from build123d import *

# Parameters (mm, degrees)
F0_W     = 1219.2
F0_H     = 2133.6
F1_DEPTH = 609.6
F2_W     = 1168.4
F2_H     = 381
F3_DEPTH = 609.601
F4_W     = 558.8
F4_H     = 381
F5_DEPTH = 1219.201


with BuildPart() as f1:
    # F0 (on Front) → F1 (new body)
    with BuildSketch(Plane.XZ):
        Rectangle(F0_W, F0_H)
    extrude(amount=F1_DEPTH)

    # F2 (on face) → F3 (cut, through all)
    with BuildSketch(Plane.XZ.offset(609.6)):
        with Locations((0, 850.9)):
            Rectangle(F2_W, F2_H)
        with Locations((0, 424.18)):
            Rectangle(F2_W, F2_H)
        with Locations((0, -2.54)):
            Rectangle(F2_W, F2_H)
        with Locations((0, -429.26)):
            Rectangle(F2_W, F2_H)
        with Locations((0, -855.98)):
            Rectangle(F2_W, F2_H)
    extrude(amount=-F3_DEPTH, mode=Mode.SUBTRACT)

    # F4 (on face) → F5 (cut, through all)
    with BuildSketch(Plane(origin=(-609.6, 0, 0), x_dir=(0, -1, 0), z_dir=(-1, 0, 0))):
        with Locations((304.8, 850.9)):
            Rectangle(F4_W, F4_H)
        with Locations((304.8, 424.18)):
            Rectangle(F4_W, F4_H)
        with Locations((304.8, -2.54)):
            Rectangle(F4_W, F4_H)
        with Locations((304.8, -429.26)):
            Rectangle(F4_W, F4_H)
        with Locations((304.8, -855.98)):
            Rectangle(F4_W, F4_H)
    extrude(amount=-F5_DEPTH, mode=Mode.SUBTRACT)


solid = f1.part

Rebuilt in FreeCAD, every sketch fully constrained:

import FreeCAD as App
import Part
import Sketcher
Q = App.Units.Quantity

doc = App.newDocument("Part")
body = doc.addObject("PartDesign::Body", "Body")

# Sketch on XZ plane
sketch1 = body.newObject("Sketcher::SketchObject", "Sketch")
sketch1.AttachmentSupport = (doc.getObject("XZ_Plane"), [""])
sketch1.MapMode = "FlatFace"
sketch1.addGeometry([
    Part.LineSegment(App.Vector(-609.6, 1066.8, 0), App.Vector(-609.6, -1066.8, 0)),
    Part.LineSegment(App.Vector(-609.6, -1066.8, 0), App.Vector(609.6, -1066.8, 0)),
    Part.LineSegment(App.Vector(609.6, -1066.8, 0), App.Vector(609.6, 1066.8, 0)),
    Part.LineSegment(App.Vector(609.6, 1066.8, 0), App.Vector(-609.6, 1066.8, 0)),
], False)
sketch1.addConstraint([
    Sketcher.Constraint("Coincident", 0, 2, 1, 1),
    Sketcher.Constraint("Coincident", 1, 2, 2, 1),
    Sketcher.Constraint("Coincident", 2, 2, 3, 1),
    Sketcher.Constraint("Coincident", 3, 2, 0, 1),
    Sketcher.Constraint("Vertical", 0),
    Sketcher.Constraint("Horizontal", 1),
    Sketcher.Constraint("Vertical", 2),
    Sketcher.Constraint("Horizontal", 3),
    Sketcher.Constraint("Symmetric", 0, 2, 2, 2, -1, 1),
    Sketcher.Constraint("DistanceX", 1, 1, 1, 2, Q("48 in")),
    Sketcher.Constraint("DistanceY", 0, 2, 0, 1, Q("84 in")),
])
pad1 = body.newObject("PartDesign::Pad", "Pad")
pad1.Profile = sketch1
pad1.Length = Q("24 in")

# Sketch on XZ plane
sketch2 = body.newObject("Sketcher::SketchObject", "Sketch001")
sketch2.AttachmentSupport = (doc.getObject("XZ_Plane"), [""])
sketch2.MapMode = "FlatFace"
sketch2.AttachmentOffset = App.Placement(App.Vector(0, 0, 24 * 25.4), App.Rotation())
sketch2.addGeometry([
    Part.LineSegment(App.Vector(-584.2, 1041.4, 0), App.Vector(-584.2, 660.4, 0)),  # 0
    Part.LineSegment(App.Vector(-584.2, 660.4, 0), App.Vector(584.2, 660.4, 0)),  # 1
    Part.LineSegment(App.Vector(584.2, 660.4, 0), App.Vector(584.2, 1041.4, 0)),  # 2
    Part.LineSegment(App.Vector(584.2, 1041.4, 0), App.Vector(-584.2, 1041.4, 0)),  # 3
    Part.LineSegment(App.Vector(-584.2, 614.68, 0), App.Vector(-584.2, 233.68, 0)),  # 4
    Part.LineSegment(App.Vector(-584.2, 233.68, 0), App.Vector(584.2, 233.68, 0)),  # 5
    Part.LineSegment(App.Vector(584.2, 233.68, 0), App.Vector(584.2, 614.68, 0)),  # 6
    Part.LineSegment(App.Vector(584.2, 614.68, 0), App.Vector(-584.2, 614.68, 0)),  # 7
    Part.LineSegment(App.Vector(-584.2, 187.96, 0), App.Vector(-584.2, -193.04, 0)),  # 8
    Part.LineSegment(App.Vector(-584.2, -193.04, 0), App.Vector(584.2, -193.04, 0)),  # 9
    Part.LineSegment(App.Vector(584.2, -193.04, 0), App.Vector(584.2, 187.96, 0)),  # 10
    Part.LineSegment(App.Vector(584.2, 187.96, 0), App.Vector(-584.2, 187.96, 0)),  # 11
    Part.LineSegment(App.Vector(-584.2, -238.76, 0), App.Vector(-584.2, -619.76, 0)),  # 12
    Part.LineSegment(App.Vector(-584.2, -619.76, 0), App.Vector(584.2, -619.76, 0)),  # 13
    Part.LineSegment(App.Vector(584.2, -619.76, 0), App.Vector(584.2, -238.76, 0)),  # 14
    Part.LineSegment(App.Vector(584.2, -238.76, 0), App.Vector(-584.2, -238.76, 0)),  # 15
    Part.LineSegment(App.Vector(-584.2, -665.48, 0), App.Vector(-584.2, -1046.48, 0)),  # 16
    Part.LineSegment(App.Vector(-584.2, -1046.48, 0), App.Vector(584.2, -1046.48, 0)),  # 17
    Part.LineSegment(App.Vector(584.2, -1046.48, 0), App.Vector(584.2, -665.48, 0)),  # 18
    Part.LineSegment(App.Vector(584.2, -665.48, 0), App.Vector(-584.2, -665.48, 0)),  # 19
], False)
sketch2.addConstraint([
    Sketcher.Constraint("Coincident", 0, 2, 1, 1),
    Sketcher.Constraint("Coincident", 1, 2, 2, 1),
    Sketcher.Constraint("Coincident", 2, 2, 3, 1),
    Sketcher.Constraint("Coincident", 3, 2, 0, 1),
    Sketcher.Constraint("Coincident", 4, 2, 5, 1),
    Sketcher.Constraint("Coincident", 5, 2, 6, 1),
    Sketcher.Constraint("Coincident", 6, 2, 7, 1),
    Sketcher.Constraint("Coincident", 7, 2, 4, 1),
    Sketcher.Constraint("Coincident", 8, 2, 9, 1),
    Sketcher.Constraint("Coincident", 9, 2, 10, 1),
    Sketcher.Constraint("Coincident", 10, 2, 11, 1),
    Sketcher.Constraint("Coincident", 11, 2, 8, 1),
    Sketcher.Constraint("Coincident", 12, 2, 13, 1),
    Sketcher.Constraint("Coincident", 13, 2, 14, 1),
    Sketcher.Constraint("Coincident", 14, 2, 15, 1),
    Sketcher.Constraint("Coincident", 15, 2, 12, 1),
    Sketcher.Constraint("Coincident", 16, 2, 17, 1),
    Sketcher.Constraint("Coincident", 17, 2, 18, 1),
    Sketcher.Constraint("Coincident", 18, 2, 19, 1),
    Sketcher.Constraint("Coincident", 19, 2, 16, 1),
    Sketcher.Constraint("Vertical", 0),
    Sketcher.Constraint("Horizontal", 1),
    Sketcher.Constraint("Vertical", 2),
    Sketcher.Constraint("Horizontal", 3),
    Sketcher.Constraint("Vertical", 4),
    Sketcher.Constraint("Horizontal", 5),
    Sketcher.Constraint("Vertical", 6),
    Sketcher.Constraint("Horizontal", 7),
    Sketcher.Constraint("Vertical", 8),
    Sketcher.Constraint("Horizontal", 9),
    Sketcher.Constraint("Vertical", 10),
    Sketcher.Constraint("Horizontal", 11),
    Sketcher.Constraint("Vertical", 12),
    Sketcher.Constraint("Horizontal", 13),
    Sketcher.Constraint("Vertical", 14),
    Sketcher.Constraint("Horizontal", 15),
    Sketcher.Constraint("Vertical", 16),
    Sketcher.Constraint("Horizontal", 17),
    Sketcher.Constraint("Vertical", 18),
    Sketcher.Constraint("Horizontal", 19),
    Sketcher.Constraint("Vertical", 3, 2, 4, 2),
    Sketcher.Constraint("Vertical", 2, 2, 5, 2),
    Sketcher.Constraint("Vertical", 7, 2, 8, 2),
    Sketcher.Constraint("Vertical", 6, 2, 9, 2),
    Sketcher.Constraint("Vertical", 11, 2, 12, 2),
    Sketcher.Constraint("Vertical", 10, 2, 13, 2),
    Sketcher.Constraint("Vertical", 15, 2, 16, 2),
    Sketcher.Constraint("Vertical", 14, 2, 17, 2),
    Sketcher.Constraint("Equal", 2, 4),
    Sketcher.Constraint("Equal", 6, 8),
    Sketcher.Constraint("Equal", 10, 12),
    Sketcher.Constraint("Equal", 14, 16),
    Sketcher.Constraint("DistanceX", 1, 1, 1, 2, Q("46 in")),
    Sketcher.Constraint("DistanceY", 0, 2, 0, 1, Q("15 in")),
    Sketcher.Constraint("DistanceX", 0, 2, -1, 1, Q("23 in")),
    Sketcher.Constraint("DistanceY", -1, 1, 0, 2, Q("26 in")),
    Sketcher.Constraint("DistanceY", -1, 1, 4, 2, Q("9.2 in")),
    Sketcher.Constraint("DistanceY", 8, 2, -1, 1, Q("7.6 in")),
    Sketcher.Constraint("DistanceY", 12, 2, -1, 1, Q("24.4 in")),
    Sketcher.Constraint("DistanceY", 16, 2, -1, 1, Q("41.2 in")),
])
pocket1 = body.newObject("PartDesign::Pocket", "Pocket")
pocket1.Profile = sketch2
pocket1.Type = "ThroughAll"

# Sketch on YZ plane
sketch3 = body.newObject("Sketcher::SketchObject", "Sketch002")
sketch3.AttachmentSupport = (doc.getObject("YZ_Plane"), [""])
sketch3.MapMode = "FlatFace"
sketch3.AttachmentOffset = App.Placement(App.Vector(0, 0, -24 * 25.4), App.Rotation())
sketch3.addGeometry([
    Part.LineSegment(App.Vector(-25.4, 1041.4, 0), App.Vector(-25.4, 660.4, 0)),  # 0
    Part.LineSegment(App.Vector(-25.4, 660.4, 0), App.Vector(-584.2, 660.4, 0)),  # 1
    Part.LineSegment(App.Vector(-584.2, 660.4, 0), App.Vector(-584.2, 1041.4, 0)),  # 2
    Part.LineSegment(App.Vector(-584.2, 1041.4, 0), App.Vector(-25.4, 1041.4, 0)),  # 3
    Part.LineSegment(App.Vector(-25.4, 614.68, 0), App.Vector(-25.4, 233.68, 0)),  # 4
    Part.LineSegment(App.Vector(-25.4, 233.68, 0), App.Vector(-584.2, 233.68, 0)),  # 5
    Part.LineSegment(App.Vector(-584.2, 233.68, 0), App.Vector(-584.2, 614.68, 0)),  # 6
    Part.LineSegment(App.Vector(-584.2, 614.68, 0), App.Vector(-25.4, 614.68, 0)),  # 7
    Part.LineSegment(App.Vector(-25.4, 187.96, 0), App.Vector(-25.4, -193.04, 0)),  # 8
    Part.LineSegment(App.Vector(-25.4, -193.04, 0), App.Vector(-584.2, -193.04, 0)),  # 9
    Part.LineSegment(App.Vector(-584.2, -193.04, 0), App.Vector(-584.2, 187.96, 0)),  # 10
    Part.LineSegment(App.Vector(-584.2, 187.96, 0), App.Vector(-25.4, 187.96, 0)),  # 11
    Part.LineSegment(App.Vector(-25.4, -238.76, 0), App.Vector(-25.4, -619.76, 0)),  # 12
    Part.LineSegment(App.Vector(-25.4, -619.76, 0), App.Vector(-584.2, -619.76, 0)),  # 13
    Part.LineSegment(App.Vector(-584.2, -619.76, 0), App.Vector(-584.2, -238.76, 0)),  # 14
    Part.LineSegment(App.Vector(-584.2, -238.76, 0), App.Vector(-25.4, -238.76, 0)),  # 15
    Part.LineSegment(App.Vector(-25.4, -665.48, 0), App.Vector(-25.4, -1046.48, 0)),  # 16
    Part.LineSegment(App.Vector(-25.4, -1046.48, 0), App.Vector(-584.2, -1046.48, 0)),  # 17
    Part.LineSegment(App.Vector(-584.2, -1046.48, 0), App.Vector(-584.2, -665.48, 0)),  # 18
    Part.LineSegment(App.Vector(-584.2, -665.48, 0), App.Vector(-25.4, -665.48, 0)),  # 19
], False)
sketch3.addConstraint([
    Sketcher.Constraint("Coincident", 0, 2, 1, 1),
    Sketcher.Constraint("Coincident", 1, 2, 2, 1),
    Sketcher.Constraint("Coincident", 2, 2, 3, 1),
    Sketcher.Constraint("Coincident", 3, 2, 0, 1),
    Sketcher.Constraint("Coincident", 4, 2, 5, 1),
    Sketcher.Constraint("Coincident", 5, 2, 6, 1),
    Sketcher.Constraint("Coincident", 6, 2, 7, 1),
    Sketcher.Constraint("Coincident", 7, 2, 4, 1),
    Sketcher.Constraint("Coincident", 8, 2, 9, 1),
    Sketcher.Constraint("Coincident", 9, 2, 10, 1),
    Sketcher.Constraint("Coincident", 10, 2, 11, 1),
    Sketcher.Constraint("Coincident", 11, 2, 8, 1),
    Sketcher.Constraint("Coincident", 12, 2, 13, 1),
    Sketcher.Constraint("Coincident", 13, 2, 14, 1),
    Sketcher.Constraint("Coincident", 14, 2, 15, 1),
    Sketcher.Constraint("Coincident", 15, 2, 12, 1),
    Sketcher.Constraint("Coincident", 16, 2, 17, 1),
    Sketcher.Constraint("Coincident", 17, 2, 18, 1),
    Sketcher.Constraint("Coincident", 18, 2, 19, 1),
    Sketcher.Constraint("Coincident", 19, 2, 16, 1),
    Sketcher.Constraint("Vertical", 0),
    Sketcher.Constraint("Horizontal", 1),
    Sketcher.Constraint("Vertical", 2),
    Sketcher.Constraint("Horizontal", 3),
    Sketcher.Constraint("Vertical", 4),
    Sketcher.Constraint("Horizontal", 5),
    Sketcher.Constraint("Vertical", 6),
    Sketcher.Constraint("Horizontal", 7),
    Sketcher.Constraint("Vertical", 8),
    Sketcher.Constraint("Horizontal", 9),
    Sketcher.Constraint("Vertical", 10),
    Sketcher.Constraint("Horizontal", 11),
    Sketcher.Constraint("Vertical", 12),
    Sketcher.Constraint("Horizontal", 13),
    Sketcher.Constraint("Vertical", 14),
    Sketcher.Constraint("Horizontal", 15),
    Sketcher.Constraint("Vertical", 16),
    Sketcher.Constraint("Horizontal", 17),
    Sketcher.Constraint("Vertical", 18),
    Sketcher.Constraint("Horizontal", 19),
    Sketcher.Constraint("Vertical", 3, 2, 4, 2),
    Sketcher.Constraint("Vertical", 2, 2, 5, 2),
    Sketcher.Constraint("Vertical", 7, 2, 8, 2),
    Sketcher.Constraint("Vertical", 6, 2, 9, 2),
    Sketcher.Constraint("Vertical", 11, 2, 12, 2),
    Sketcher.Constraint("Vertical", 10, 2, 13, 2),
    Sketcher.Constraint("Vertical", 15, 2, 16, 2),
    Sketcher.Constraint("Vertical", 14, 2, 17, 2),
    Sketcher.Constraint("Equal", 2, 4),
    Sketcher.Constraint("Equal", 6, 8),
    Sketcher.Constraint("Equal", 10, 12),
    Sketcher.Constraint("Equal", 14, 16),
    Sketcher.Constraint("DistanceX", 1, 2, 1, 1, Q("22 in")),
    Sketcher.Constraint("DistanceY", 0, 2, 0, 1, Q("15 in")),
    Sketcher.Constraint("DistanceX", 0, 2, -1, 1, Q("1 in")),
    Sketcher.Constraint("DistanceY", -1, 1, 0, 2, Q("26 in")),
    Sketcher.Constraint("DistanceY", -1, 1, 4, 2, Q("9.2 in")),
    Sketcher.Constraint("DistanceY", 8, 2, -1, 1, Q("7.6 in")),
    Sketcher.Constraint("DistanceY", 12, 2, -1, 1, Q("24.4 in")),
    Sketcher.Constraint("DistanceY", 16, 2, -1, 1, Q("41.2 in")),
])
pocket2 = body.newObject("PartDesign::Pocket", "Pocket001")
pocket2.Profile = sketch3
pocket2.Type = "ThroughAll"
pocket2.Reversed = True

doc.recompute()
